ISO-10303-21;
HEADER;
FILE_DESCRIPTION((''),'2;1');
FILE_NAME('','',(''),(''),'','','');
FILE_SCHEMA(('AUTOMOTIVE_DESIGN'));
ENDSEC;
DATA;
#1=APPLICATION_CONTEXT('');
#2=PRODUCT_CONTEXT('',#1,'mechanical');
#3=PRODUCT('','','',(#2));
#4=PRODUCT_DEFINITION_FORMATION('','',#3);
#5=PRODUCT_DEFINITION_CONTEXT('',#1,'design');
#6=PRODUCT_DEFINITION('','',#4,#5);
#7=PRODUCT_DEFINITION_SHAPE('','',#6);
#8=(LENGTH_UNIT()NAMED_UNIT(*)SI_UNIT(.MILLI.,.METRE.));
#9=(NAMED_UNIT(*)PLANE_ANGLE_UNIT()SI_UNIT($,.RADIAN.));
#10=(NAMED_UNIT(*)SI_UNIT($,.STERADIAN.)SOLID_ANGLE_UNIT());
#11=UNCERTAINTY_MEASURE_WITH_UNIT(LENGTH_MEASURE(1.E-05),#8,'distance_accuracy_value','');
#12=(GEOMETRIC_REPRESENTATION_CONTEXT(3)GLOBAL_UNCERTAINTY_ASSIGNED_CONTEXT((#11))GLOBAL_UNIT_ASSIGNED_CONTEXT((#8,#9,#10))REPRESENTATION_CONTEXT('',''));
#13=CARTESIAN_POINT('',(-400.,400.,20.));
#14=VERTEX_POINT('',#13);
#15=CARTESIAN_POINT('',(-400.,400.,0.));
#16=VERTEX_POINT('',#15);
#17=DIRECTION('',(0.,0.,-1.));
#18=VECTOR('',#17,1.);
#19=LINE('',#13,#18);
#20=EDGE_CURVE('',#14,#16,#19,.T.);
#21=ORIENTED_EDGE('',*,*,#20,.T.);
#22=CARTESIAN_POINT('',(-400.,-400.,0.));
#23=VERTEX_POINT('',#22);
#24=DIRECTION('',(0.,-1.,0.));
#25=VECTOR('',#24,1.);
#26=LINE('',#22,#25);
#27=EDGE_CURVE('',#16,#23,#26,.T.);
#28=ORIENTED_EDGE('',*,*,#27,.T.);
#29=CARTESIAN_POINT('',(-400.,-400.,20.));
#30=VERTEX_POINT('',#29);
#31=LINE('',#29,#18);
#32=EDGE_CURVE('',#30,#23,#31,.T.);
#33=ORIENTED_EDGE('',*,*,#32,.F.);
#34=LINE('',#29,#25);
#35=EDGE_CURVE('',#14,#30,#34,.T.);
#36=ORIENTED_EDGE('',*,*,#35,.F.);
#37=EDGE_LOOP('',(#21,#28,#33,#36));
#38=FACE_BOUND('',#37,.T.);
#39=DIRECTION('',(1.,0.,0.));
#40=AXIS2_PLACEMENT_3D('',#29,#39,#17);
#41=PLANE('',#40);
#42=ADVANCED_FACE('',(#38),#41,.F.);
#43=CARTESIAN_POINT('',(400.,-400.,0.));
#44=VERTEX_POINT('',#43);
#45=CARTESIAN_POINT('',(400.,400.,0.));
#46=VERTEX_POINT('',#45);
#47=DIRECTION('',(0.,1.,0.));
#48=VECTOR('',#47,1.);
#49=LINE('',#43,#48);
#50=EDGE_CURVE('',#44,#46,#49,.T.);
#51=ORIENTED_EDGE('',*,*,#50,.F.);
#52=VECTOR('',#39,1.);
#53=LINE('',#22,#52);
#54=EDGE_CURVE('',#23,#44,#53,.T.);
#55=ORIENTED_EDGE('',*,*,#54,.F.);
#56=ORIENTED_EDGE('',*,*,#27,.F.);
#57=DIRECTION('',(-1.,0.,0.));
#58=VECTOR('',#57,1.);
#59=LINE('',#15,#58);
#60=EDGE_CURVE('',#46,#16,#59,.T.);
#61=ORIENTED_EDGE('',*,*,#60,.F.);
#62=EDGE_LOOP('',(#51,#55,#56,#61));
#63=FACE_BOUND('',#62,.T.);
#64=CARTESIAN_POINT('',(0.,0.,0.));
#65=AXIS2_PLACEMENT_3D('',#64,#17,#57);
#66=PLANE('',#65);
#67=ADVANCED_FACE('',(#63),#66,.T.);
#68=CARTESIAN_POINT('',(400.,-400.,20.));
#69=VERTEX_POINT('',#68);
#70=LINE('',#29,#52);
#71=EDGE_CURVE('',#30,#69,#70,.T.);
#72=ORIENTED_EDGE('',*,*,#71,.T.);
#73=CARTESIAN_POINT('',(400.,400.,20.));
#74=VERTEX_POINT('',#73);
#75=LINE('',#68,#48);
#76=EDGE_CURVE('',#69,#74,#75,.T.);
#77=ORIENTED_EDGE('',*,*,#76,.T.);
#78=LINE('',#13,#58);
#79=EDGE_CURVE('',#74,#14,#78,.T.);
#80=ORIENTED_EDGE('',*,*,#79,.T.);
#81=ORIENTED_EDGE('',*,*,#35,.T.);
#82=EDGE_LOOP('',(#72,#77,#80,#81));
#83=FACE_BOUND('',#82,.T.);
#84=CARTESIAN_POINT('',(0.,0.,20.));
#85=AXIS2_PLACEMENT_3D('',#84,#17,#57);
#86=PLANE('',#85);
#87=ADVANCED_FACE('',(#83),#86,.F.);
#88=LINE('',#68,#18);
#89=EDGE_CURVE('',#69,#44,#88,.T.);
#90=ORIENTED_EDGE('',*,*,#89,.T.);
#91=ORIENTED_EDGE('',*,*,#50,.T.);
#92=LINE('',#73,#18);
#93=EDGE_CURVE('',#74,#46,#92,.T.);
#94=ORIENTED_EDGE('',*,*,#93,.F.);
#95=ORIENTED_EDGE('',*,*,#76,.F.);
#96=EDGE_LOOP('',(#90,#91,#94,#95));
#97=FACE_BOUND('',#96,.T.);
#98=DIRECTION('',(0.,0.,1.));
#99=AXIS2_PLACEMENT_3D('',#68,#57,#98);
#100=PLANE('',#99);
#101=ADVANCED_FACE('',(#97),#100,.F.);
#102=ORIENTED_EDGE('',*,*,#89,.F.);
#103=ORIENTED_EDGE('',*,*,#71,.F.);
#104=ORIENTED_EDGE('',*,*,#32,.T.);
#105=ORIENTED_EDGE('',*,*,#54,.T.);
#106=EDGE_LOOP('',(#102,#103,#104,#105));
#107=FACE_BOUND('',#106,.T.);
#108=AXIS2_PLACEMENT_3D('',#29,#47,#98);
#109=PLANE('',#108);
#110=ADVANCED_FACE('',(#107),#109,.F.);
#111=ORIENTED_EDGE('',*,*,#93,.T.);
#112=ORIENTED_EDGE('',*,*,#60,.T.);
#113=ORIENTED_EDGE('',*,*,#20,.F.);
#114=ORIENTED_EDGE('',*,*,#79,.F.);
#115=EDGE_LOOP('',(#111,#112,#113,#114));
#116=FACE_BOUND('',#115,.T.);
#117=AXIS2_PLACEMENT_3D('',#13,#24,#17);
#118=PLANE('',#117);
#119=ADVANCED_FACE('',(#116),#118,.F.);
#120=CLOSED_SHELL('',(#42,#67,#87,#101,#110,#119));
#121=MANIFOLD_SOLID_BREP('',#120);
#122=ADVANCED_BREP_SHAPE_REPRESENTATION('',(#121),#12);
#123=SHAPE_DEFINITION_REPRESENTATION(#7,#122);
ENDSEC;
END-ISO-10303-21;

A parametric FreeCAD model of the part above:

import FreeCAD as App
import Part
import Sketcher
Q = App.Units.Quantity


def add_polygon(sketch, points):
    """Adds a closed chain of lines whose ends are joined by coincident constraints."""
    first, n = sketch.GeometryCount, len(points)
    for a, b in zip(points, points[1:] + points[:1]):
        sketch.addGeometry(Part.LineSegment(App.Vector(*a, 0), App.Vector(*b, 0)), False)
    for i in range(n):
        sketch.addConstraint(Sketcher.Constraint("Coincident", first + i, 2, first + (i + 1) % n, 1))

doc = App.newDocument("Part")
body = doc.addObject("PartDesign::Body", "Body")

sketch1 = doc.addObject("Sketcher::SketchObject", "Sketch")
body.addObject(sketch1)
sketch1.AttachmentSupport = (doc.XY_Plane, [""])
sketch1.MapMode = "FlatFace"
add_polygon(sketch1, [(-400, 400), (-400, -400), (400, -400), (400, 400)])
sketch1.addConstraint([
    Sketcher.Constraint("Vertical", 0),
    Sketcher.Constraint("Horizontal", 1),
    Sketcher.Constraint("Vertical", 2),
    Sketcher.Constraint("Horizontal", 3),
    Sketcher.Constraint("Symmetric", 0, 2, 2, 2, -1, 1),
    Sketcher.Constraint("Equal", 3, 0),
    Sketcher.Constraint("DistanceX", 1, 1, 1, 2, Q("800 mm")),
])
pad1 = doc.addObject("PartDesign::Pad", "Pad")
body.addObject(pad1)
pad1.Profile = sketch1
pad1.Length = 20

doc.recompute()
